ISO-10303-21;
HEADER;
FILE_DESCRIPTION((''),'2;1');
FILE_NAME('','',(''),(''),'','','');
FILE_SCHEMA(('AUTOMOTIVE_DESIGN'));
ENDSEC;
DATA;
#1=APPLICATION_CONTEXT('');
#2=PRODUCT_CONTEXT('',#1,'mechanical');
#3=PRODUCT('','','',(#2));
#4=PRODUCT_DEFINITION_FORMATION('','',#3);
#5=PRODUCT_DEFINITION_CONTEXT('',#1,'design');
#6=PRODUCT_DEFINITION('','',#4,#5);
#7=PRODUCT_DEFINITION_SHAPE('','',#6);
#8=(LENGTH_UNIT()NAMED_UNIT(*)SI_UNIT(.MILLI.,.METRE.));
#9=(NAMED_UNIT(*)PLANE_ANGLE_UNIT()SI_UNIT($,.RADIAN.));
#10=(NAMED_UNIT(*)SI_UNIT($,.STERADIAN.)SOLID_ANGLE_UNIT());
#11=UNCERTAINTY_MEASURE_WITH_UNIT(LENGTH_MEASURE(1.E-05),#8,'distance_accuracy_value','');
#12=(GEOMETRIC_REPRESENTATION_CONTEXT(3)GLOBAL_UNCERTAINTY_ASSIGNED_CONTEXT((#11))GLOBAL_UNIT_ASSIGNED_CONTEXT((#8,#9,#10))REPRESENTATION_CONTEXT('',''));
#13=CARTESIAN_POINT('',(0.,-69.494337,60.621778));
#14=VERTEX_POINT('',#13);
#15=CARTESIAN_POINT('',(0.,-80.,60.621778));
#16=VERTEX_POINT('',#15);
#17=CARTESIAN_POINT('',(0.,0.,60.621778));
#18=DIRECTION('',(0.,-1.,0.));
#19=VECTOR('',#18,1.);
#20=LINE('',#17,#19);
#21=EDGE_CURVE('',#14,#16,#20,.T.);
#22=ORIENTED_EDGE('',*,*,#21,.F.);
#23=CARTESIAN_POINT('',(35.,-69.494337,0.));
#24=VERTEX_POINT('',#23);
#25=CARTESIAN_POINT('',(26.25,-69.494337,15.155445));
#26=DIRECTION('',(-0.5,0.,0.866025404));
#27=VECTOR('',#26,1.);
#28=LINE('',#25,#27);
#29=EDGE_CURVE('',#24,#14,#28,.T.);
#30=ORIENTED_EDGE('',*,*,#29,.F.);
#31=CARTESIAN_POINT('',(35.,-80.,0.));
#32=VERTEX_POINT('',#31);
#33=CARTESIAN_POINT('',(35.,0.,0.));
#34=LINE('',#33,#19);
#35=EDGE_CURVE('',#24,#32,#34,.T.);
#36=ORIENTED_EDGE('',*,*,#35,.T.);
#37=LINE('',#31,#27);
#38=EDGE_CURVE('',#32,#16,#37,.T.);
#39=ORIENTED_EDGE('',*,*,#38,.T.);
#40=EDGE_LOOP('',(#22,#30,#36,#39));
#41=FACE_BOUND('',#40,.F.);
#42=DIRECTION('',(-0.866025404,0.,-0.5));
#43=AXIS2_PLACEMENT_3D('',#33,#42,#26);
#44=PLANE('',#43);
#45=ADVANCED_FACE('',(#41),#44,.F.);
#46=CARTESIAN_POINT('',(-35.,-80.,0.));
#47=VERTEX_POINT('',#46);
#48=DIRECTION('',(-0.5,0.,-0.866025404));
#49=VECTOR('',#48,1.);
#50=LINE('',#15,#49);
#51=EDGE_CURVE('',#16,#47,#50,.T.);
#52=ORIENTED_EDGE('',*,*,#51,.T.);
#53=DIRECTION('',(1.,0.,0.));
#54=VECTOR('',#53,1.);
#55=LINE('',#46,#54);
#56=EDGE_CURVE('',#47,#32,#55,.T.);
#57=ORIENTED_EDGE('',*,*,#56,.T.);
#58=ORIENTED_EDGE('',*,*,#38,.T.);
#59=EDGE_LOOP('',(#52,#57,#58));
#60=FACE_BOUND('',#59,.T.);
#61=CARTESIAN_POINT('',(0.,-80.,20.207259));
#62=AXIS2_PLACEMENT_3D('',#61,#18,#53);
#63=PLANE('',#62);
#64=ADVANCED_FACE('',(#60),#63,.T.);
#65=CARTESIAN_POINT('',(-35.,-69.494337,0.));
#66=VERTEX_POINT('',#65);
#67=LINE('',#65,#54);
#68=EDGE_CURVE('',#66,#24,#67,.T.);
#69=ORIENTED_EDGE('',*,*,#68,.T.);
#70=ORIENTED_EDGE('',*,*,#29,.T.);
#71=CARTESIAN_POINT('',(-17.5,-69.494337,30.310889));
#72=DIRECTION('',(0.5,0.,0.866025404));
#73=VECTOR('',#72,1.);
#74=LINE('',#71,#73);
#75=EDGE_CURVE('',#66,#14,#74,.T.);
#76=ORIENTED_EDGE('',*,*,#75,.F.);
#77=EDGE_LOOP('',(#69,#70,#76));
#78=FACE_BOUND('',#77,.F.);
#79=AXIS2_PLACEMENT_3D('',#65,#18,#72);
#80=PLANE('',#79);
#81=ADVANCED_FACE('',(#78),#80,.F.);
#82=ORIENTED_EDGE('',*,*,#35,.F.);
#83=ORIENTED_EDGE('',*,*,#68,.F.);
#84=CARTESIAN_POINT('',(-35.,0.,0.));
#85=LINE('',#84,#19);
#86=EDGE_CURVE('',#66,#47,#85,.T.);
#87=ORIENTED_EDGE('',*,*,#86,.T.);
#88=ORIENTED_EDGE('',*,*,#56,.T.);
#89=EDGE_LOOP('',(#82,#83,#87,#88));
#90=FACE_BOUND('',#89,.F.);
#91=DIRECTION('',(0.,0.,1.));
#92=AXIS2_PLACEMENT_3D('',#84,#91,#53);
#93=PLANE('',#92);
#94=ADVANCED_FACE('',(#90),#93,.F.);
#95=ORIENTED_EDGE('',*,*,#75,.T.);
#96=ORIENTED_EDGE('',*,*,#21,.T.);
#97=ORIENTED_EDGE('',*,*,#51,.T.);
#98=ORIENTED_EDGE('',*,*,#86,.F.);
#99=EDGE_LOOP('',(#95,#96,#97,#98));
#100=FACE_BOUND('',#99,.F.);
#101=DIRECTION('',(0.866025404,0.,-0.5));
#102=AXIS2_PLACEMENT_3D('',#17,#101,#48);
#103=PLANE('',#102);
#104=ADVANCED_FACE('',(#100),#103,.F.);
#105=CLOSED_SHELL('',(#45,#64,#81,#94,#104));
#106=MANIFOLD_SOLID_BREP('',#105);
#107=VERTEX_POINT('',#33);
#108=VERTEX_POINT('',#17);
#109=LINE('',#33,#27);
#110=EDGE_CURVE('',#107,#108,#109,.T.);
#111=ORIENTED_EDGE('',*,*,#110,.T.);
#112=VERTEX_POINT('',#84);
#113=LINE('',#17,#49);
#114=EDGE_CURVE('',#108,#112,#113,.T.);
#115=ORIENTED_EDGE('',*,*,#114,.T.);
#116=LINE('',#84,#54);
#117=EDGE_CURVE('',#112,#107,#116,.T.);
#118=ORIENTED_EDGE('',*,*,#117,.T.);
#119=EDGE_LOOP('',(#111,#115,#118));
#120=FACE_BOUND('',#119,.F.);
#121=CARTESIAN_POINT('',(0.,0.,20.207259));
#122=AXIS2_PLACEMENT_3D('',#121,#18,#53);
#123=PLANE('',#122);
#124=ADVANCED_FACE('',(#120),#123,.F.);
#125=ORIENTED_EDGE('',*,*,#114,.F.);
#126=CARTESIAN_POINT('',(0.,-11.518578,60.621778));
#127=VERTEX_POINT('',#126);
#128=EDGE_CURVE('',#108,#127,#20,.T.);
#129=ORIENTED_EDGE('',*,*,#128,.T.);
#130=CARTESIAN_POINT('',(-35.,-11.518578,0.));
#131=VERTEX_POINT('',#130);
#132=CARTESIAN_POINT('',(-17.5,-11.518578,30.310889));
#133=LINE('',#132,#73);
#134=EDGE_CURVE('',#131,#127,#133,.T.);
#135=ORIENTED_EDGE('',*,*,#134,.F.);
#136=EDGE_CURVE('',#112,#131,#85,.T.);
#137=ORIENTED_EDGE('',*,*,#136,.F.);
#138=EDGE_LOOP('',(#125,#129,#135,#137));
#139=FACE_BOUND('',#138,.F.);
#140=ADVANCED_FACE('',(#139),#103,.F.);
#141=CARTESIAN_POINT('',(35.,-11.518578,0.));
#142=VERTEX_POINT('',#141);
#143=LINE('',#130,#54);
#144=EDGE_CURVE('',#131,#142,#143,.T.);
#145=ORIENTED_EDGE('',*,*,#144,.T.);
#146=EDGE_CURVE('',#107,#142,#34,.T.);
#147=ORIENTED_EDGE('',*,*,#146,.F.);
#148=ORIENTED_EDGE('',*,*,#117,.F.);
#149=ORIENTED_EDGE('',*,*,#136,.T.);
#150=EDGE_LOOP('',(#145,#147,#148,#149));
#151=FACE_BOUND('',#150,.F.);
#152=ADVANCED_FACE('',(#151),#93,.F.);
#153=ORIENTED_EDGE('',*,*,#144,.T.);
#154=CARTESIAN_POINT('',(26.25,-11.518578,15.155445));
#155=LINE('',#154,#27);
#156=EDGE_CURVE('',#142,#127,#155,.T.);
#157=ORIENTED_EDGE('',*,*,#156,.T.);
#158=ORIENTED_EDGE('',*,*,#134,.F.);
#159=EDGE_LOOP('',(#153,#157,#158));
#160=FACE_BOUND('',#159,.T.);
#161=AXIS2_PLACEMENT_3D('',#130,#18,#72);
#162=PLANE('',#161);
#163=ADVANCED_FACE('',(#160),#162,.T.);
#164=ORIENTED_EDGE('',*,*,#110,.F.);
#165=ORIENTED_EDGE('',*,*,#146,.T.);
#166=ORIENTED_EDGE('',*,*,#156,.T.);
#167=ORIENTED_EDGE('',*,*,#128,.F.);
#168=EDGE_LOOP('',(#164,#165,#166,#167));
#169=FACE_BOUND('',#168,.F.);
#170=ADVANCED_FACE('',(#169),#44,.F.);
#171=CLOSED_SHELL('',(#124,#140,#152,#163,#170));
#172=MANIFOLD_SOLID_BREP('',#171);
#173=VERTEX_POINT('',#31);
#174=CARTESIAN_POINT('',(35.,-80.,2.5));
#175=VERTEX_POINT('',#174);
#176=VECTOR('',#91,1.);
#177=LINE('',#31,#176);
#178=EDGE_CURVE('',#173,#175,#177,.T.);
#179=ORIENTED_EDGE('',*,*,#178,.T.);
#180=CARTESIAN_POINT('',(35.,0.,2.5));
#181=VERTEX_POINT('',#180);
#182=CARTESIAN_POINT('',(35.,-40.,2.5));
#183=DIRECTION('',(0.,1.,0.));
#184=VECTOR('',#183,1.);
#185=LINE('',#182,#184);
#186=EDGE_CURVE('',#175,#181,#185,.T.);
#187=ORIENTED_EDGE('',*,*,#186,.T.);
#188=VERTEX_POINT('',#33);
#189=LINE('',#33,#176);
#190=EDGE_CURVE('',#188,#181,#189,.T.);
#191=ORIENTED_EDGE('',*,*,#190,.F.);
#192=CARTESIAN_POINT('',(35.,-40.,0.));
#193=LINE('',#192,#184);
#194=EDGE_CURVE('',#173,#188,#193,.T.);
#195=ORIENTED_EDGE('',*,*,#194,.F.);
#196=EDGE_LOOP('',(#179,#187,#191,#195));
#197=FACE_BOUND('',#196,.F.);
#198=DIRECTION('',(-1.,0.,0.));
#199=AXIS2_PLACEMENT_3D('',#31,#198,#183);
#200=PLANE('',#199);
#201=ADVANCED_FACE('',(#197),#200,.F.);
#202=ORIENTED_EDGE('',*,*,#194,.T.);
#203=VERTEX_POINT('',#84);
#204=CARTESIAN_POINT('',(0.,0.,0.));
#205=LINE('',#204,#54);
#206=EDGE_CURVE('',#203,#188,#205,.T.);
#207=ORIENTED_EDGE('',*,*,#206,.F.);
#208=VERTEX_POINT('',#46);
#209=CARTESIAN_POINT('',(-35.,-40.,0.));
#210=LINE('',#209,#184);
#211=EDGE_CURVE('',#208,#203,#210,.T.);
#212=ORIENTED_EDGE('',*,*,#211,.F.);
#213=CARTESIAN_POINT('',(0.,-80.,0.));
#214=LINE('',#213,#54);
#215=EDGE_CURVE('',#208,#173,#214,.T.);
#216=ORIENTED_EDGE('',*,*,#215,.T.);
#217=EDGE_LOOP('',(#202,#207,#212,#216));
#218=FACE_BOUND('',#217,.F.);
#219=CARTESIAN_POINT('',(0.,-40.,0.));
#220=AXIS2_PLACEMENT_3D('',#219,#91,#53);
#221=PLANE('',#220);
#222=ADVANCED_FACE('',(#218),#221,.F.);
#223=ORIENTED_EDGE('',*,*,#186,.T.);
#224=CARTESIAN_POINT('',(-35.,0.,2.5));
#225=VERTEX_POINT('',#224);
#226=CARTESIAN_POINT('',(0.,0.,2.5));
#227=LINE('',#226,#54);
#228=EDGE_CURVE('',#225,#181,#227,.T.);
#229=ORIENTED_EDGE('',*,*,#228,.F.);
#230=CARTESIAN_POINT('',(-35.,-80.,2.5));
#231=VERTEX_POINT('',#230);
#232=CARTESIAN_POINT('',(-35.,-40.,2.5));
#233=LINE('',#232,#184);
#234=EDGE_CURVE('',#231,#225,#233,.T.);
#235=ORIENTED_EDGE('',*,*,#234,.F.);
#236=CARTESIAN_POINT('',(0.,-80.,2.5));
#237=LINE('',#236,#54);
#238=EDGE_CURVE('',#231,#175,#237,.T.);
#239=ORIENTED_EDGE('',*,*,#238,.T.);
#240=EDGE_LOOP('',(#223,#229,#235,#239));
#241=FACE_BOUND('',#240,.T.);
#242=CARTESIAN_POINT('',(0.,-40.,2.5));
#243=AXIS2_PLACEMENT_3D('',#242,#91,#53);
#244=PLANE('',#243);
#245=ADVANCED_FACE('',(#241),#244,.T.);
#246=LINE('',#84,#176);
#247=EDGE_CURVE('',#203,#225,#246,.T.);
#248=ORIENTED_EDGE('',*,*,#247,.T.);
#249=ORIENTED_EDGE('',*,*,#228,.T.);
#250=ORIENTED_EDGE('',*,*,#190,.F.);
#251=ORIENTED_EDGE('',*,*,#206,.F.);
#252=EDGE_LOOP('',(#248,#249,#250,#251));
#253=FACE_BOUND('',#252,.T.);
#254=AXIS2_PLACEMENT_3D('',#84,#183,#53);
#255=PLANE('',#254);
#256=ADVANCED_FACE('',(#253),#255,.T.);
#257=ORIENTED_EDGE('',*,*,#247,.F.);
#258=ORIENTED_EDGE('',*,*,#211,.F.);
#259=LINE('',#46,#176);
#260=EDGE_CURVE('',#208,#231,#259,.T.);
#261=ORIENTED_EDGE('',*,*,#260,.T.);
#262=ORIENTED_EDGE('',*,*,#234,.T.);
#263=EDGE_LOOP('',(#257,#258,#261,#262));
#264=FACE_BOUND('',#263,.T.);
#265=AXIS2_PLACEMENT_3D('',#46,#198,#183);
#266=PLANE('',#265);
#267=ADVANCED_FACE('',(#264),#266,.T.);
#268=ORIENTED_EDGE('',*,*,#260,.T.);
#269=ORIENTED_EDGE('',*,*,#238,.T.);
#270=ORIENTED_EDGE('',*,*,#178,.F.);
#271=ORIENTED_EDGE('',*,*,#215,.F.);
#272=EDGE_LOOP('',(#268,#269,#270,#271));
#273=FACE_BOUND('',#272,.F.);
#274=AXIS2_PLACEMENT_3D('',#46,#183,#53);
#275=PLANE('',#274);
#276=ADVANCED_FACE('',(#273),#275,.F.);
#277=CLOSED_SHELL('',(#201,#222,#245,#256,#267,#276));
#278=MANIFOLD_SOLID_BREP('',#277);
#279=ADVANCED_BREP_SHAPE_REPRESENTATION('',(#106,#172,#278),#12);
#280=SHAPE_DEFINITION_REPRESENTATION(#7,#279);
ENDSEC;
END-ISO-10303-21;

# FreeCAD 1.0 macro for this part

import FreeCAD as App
import Part
import Sketcher
from FreeCAD import Vector
Q = App.Units.Quantity


def add_polygon(sketch, points):
    """Adds a closed chain of lines whose ends are joined by coincident constraints."""
    first, n = sketch.GeometryCount, len(points)
    for a, b in zip(points, points[1:] + points[:1]):
        sketch.addGeometry(Part.LineSegment(App.Vector(*a, 0), App.Vector(*b, 0)), False)
    for i in range(n):
        sketch.addConstraint(Sketcher.Constraint("Coincident", first + i, 2, first + (i + 1) % n, 1))

doc = App.newDocument("Part")
params = doc.addObject("Spreadsheet::Sheet", "Params")
for row, (alias, value) in enumerate([
    ("sketch1_width", "70 mm"),
    ("pad1_length", "80 mm"),
    ("sketch2_height", "70 mm"),
    ("pocket1_length", "100 mm"),
    ("sketch3_width", "70 mm"),
    ("sketch3_height", "80 mm"),
    ("pad2_length", "2.5 mm"),
], start=1):
    params.set(f"A{row}", alias)
    params.set(f"B{row}", "=" + value)
    params.setAlias(f"B{row}", alias)

body = doc.addObject("PartDesign::Body", "Body")
body.AllowCompound = True

sketch1 = doc.addObject("Sketcher::SketchObject", "Sketch")
body.addObject(sketch1)
sketch1.AttachmentSupport = (doc.XZ_Plane, [""])
sketch1.MapMode = "FlatFace"
add_polygon(sketch1, [(35, 0), (0, 61), (-35, 0)])
sketch1.addConstraint(Sketcher.Constraint("Horizontal", 2))
sketch1.addConstraint(Sketcher.Constraint("Symmetric", 1, 2, 2, 2, -1, 1))
sketch1.addConstraint(Sketcher.Constraint("PointOnObject", 0, 2, -2))
sketch1.addConstraint(Sketcher.Constraint("DistanceX", 2, 1, 2, 2, Q("70 mm")))
sketch1.addConstraint(Sketcher.Constraint("Angle", 0, Q("120 deg")))
sketch1.setExpression("Constraints[6]", "Params.sketch1_width")
pad1 = doc.addObject("PartDesign::Pad", "Pad")
body.addObject(pad1)
pad1.Profile = sketch1
pad1.setExpression("Length", "Params.pad1_length")

sketch2 = doc.addObject("Sketcher::SketchObject", "Sketch001")
body.addObject(sketch2)
sketch2.Placement = App.Placement(Vector(-26.25, 0, 15.155445), App.Rotation(Vector(0, -1, 0), Vector(0.5, 0, 0.866025404), Vector(-0.866025404, 0, 0.5), "ZXY"))
add_polygon(sketch2, [(12, 53), (12, -18), (69, -18), (69, 53)])
sketch2.addConstraint(Sketcher.Constraint("Vertical", 0))
sketch2.addConstraint(Sketcher.Constraint("Horizontal", 1))
sketch2.addConstraint(Sketcher.Constraint("Vertical", 2))
sketch2.addConstraint(Sketcher.Constraint("Horizontal", 3))
sketch2.addConstraint(Sketcher.Constraint("DistanceY", 0, 2, 0, 1, Q("70 mm")))
sketch2.addConstraint(Sketcher.Constraint("DistanceY", 0, 2, -1, 1, Q("17.5 mm")))
sketch2.addConstraint(Sketcher.Constraint("DistanceX", 1, 1, 1, 2, Q("57.975759 mm")))
sketch2.addConstraint(Sketcher.Constraint("DistanceX", -1, 1, 0, 2, Q("11.518578 mm")))
sketch2.setExpression("Constraints[8]", "Params.sketch2_height")
pocket1 = doc.addObject("PartDesign::Pocket", "Pocket")
body.addObject(pocket1)
pocket1.Profile = sketch2
pocket1.setExpression("Length", "Params.pocket1_length")
body2 = doc.addObject("PartDesign::Body", "Body001")

sketch3 = doc.addObject("Sketcher::SketchObject", "Sketch002")
body2.addObject(sketch3)
sketch3.AttachmentSupport = (doc.getObject("XY_Plane001"), [""])
sketch3.MapMode = "FlatFace"
add_polygon(sketch3, [(-35, 0), (-35, -80), (35, -80), (35, 0)])
sketch3.addConstraint(Sketcher.Constraint("Vertical", 0))
sketch3.addConstraint(Sketcher.Constraint("Horizontal", 1))
sketch3.addConstraint(Sketcher.Constraint("Vertical", 2))
sketch3.addConstraint(Sketcher.Constraint("Horizontal", 3))
sketch3.addConstraint(Sketcher.Constraint("Symmetric", 2, 2, 3, 2, -1, 1))
sketch3.addConstraint(Sketcher.Constraint("DistanceX", 1, 1, 1, 2, Q("70 mm")))
sketch3.addConstraint(Sketcher.Constraint("DistanceY", 0, 2, 0, 1, Q("80 mm")))
sketch3.setExpression("Constraints[9]", "Params.sketch3_width")
sketch3.setExpression("Constraints[10]", "Params.sketch3_height")
pad2 = doc.addObject("PartDesign::Pad", "Pad001")
body2.addObject(pad2)
pad2.Profile = sketch3
pad2.setExpression("Length", "Params.pad2_length")

doc.recompute()
